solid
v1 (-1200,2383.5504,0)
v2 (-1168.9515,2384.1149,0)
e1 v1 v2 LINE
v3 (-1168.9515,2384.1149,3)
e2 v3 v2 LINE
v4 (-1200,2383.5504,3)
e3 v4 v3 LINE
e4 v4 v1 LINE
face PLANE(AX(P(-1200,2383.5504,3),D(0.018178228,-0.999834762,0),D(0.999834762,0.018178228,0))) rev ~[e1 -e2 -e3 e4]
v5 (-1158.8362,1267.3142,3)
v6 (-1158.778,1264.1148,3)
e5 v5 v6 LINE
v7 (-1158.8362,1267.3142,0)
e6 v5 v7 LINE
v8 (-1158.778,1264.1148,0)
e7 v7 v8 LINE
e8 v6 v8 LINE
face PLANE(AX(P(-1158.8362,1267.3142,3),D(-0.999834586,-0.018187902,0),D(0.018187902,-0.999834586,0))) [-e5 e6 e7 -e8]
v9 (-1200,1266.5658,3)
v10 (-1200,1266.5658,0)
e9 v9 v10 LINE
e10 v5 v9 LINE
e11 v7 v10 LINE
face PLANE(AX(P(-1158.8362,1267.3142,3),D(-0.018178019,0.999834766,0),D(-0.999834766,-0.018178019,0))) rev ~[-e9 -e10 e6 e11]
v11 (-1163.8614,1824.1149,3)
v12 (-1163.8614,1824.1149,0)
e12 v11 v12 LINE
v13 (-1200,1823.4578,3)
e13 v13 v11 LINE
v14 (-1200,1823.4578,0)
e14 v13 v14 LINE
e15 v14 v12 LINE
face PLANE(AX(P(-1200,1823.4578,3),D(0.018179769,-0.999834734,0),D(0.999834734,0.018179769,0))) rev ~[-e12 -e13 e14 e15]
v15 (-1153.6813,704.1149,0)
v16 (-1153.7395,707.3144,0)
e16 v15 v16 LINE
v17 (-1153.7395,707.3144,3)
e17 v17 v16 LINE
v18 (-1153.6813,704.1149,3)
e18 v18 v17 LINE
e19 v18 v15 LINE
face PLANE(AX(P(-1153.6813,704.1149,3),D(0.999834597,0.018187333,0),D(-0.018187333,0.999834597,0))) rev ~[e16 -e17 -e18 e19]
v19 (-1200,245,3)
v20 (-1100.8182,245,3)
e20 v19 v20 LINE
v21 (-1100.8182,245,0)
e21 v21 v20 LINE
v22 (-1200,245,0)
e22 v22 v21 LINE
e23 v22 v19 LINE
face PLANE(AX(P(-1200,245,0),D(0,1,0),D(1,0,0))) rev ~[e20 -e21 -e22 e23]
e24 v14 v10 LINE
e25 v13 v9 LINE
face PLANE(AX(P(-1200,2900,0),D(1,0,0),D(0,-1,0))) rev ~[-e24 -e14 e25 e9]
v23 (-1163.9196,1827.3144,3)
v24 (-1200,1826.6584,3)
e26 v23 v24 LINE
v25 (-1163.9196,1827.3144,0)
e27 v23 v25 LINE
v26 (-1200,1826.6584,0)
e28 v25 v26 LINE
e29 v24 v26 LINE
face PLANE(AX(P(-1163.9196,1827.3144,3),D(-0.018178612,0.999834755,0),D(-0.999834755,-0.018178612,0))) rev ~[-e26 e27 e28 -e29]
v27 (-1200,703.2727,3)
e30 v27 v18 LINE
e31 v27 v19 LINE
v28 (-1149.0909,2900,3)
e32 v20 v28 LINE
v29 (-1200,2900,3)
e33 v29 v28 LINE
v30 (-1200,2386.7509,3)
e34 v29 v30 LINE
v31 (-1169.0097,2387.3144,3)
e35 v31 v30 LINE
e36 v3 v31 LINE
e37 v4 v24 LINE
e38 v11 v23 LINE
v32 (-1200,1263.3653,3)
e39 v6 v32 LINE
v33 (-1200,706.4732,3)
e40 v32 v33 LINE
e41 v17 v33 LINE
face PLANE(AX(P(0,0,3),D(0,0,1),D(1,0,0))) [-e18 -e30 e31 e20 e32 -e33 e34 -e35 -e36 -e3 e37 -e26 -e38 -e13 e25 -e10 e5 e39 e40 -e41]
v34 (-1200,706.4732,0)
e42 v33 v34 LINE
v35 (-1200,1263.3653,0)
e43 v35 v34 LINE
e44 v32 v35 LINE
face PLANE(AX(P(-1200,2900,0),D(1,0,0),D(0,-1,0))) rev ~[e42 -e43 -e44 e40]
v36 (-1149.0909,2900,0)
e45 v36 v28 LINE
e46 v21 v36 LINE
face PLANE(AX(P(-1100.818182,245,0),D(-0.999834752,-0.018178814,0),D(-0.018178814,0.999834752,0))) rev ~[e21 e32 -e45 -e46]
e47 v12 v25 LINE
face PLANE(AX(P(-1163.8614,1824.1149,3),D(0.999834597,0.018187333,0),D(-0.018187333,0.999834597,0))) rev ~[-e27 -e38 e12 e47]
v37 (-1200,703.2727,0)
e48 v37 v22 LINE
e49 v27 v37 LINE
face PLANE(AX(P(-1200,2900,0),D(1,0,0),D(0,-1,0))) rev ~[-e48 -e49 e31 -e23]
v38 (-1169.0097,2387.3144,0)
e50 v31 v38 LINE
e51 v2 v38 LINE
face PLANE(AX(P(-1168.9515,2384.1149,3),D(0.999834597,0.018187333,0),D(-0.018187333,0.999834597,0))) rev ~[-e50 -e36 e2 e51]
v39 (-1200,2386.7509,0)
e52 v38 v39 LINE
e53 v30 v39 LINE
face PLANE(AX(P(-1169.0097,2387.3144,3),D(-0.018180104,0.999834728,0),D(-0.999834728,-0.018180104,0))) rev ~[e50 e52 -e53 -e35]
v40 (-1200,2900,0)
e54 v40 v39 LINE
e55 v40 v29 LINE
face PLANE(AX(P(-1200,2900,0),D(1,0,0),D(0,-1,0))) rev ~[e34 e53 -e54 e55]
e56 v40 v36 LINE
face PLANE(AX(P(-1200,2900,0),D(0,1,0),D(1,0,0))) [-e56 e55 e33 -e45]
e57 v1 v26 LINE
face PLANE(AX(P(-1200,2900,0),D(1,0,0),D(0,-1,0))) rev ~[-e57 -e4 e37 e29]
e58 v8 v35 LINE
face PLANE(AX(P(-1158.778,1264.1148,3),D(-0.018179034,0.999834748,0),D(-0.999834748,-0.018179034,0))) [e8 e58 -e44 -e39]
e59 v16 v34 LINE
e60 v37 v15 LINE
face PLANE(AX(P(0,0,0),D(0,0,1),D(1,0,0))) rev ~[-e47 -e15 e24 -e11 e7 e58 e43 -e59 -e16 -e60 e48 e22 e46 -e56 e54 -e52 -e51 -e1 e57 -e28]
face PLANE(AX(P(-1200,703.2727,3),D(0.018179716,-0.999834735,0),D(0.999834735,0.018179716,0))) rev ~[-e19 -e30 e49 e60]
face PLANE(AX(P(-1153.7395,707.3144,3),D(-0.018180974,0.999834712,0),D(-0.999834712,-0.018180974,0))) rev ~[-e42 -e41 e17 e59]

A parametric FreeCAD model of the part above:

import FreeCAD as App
import Part
import Sketcher

V = App.Vector

doc = App.newDocument("Part")
body = doc.addObject("PartDesign::Body", "Body")

# Sketch on XY plane
sketch1 = body.newObject("Sketcher::SketchObject", "Sketch")
sketch1.AttachmentSupport = (doc.getObject("XY_Plane"), [""])
sketch1.MapMode = "FlatFace"
sketch1.addGeometry(Part.LineSegment(V(-1101, 245, 0), V(-1149, 2900, 0)), False)
sketch1.addGeometry(Part.LineSegment(V(-1149, 2900, 0), V(-1200, 2900, 0)), False)
sketch1.addGeometry(Part.LineSegment(V(-1200, 2900, 0), V(-1200, 245, 0)), False)
sketch1.addGeometry(Part.LineSegment(V(-1200, 245, 0), V(-1101, 245, 0)), False)
sketch1.addConstraint(Sketcher.Constraint("Coincident", 0, 2, 1, 1))
sketch1.addConstraint(Sketcher.Constraint("Coincident", 1, 2, 2, 1))
sketch1.addConstraint(Sketcher.Constraint("Coincident", 2, 2, 3, 1))
sketch1.addConstraint(Sketcher.Constraint("Coincident", 3, 2, 0, 1))
sketch1.addConstraint(Sketcher.Constraint("Horizontal", 1))
sketch1.addConstraint(Sketcher.Constraint("Vertical", 2))
sketch1.addConstraint(Sketcher.Constraint("Horizontal", 3))
sketch1.addConstraint(Sketcher.Constraint("DistanceY", 2, 2, 2, 1, 2655.0))
sketch1.addConstraint(Sketcher.Constraint("DistanceY", -1, 1, 0, 2, 2900.0))
sketch1.addConstraint(Sketcher.Constraint("DistanceX", 1, 2, -1, 1, 1200.0))
sketch1.addConstraint(Sketcher.Constraint("DistanceX", 1, 2, 1, 1, 50.909))
sketch1.addConstraint(Sketcher.Constraint("DistanceX", 3, 1, 3, 2, 99.1818))
pad1 = body.newObject("PartDesign::Pad", "Pad")
pad1.Profile = sketch1
pad1.Length = 3

# Sketch on XY plane
sketch2 = body.newObject("Sketcher::SketchObject", "Sketch001")
sketch2.AttachmentSupport = (doc.getObject("XY_Plane"), [""])
sketch2.MapMode = "FlatFace"
sketch2.AttachmentOffset = App.Placement(V(0, 0, 3), App.Rotation())
sketch2.addGeometry(Part.LineSegment(V(-1169, 2387.3, 0), V(-1200, 2386.8, 0)), False)
sketch2.addGeometry(Part.LineSegment(V(-1200, 2386.8, 0), V(-1200, 2383.6, 0)), False)
sketch2.addGeometry(Part.LineSegment(V(-1200, 2383.6, 0), V(-1169, 2384.1, 0)), False)
sketch2.addGeometry(Part.LineSegment(V(-1169, 2384.1, 0), V(-1169, 2387.3, 0)), False)
sketch2.addGeometry(Part.LineSegment(V(-1200, 706.5, 0), V(-1200, 703.3, 0)), False)
sketch2.addGeometry(Part.LineSegment(V(-1200, 703.3, 0), V(-1153.7, 704.1, 0)), False)
sketch2.addGeometry(Part.LineSegment(V(-1153.7, 704.1, 0), V(-1153.7, 707.3, 0)), False)
sketch2.addGeometry(Part.LineSegment(V(-1153.7, 707.3, 0), V(-1200, 706.5, 0)), False)
sketch2.addGeometry(Part.LineSegment(V(-1163.9, 1827.3, 0), V(-1200, 1826.7, 0)), False)
sketch2.addGeometry(Part.LineSegment(V(-1200, 1826.7, 0), V(-1200, 1823.5, 0)), False)
sketch2.addGeometry(Part.LineSegment(V(-1200, 1823.5, 0), V(-1163.9, 1824.1, 0)), False)
sketch2.addGeometry(Part.LineSegment(V(-1163.9, 1824.1, 0), V(-1163.9, 1827.3, 0)), False)
sketch2.addGeometry(Part.LineSegment(V(-1200, 1266.6, 0), V(-1200, 1263.4, 0)), False)
sketch2.addGeometry(Part.LineSegment(V(-1200, 1263.4, 0), V(-1158.8, 1264.1, 0)), False)
sketch2.addGeometry(Part.LineSegment(V(-1158.8, 1264.1, 0), V(-1158.8, 1267.3, 0)), False)
sketch2.addGeometry(Part.LineSegment(V(-1158.8, 1267.3, 0), V(-1200, 1266.6, 0)), False)
sketch2.addConstraint(Sketcher.Constraint("Coincident", 0, 2, 1, 1))
sketch2.addConstraint(Sketcher.Constraint("Coincident", 1, 2, 2, 1))
sketch2.addConstraint(Sketcher.Constraint("Coincident", 2, 2, 3, 1))
sketch2.addConstraint(Sketcher.Constraint("Coincident", 3, 2, 0, 1))
sketch2.addConstraint(Sketcher.Constraint("Coincident", 4, 2, 5, 1))
sketch2.addConstraint(Sketcher.Constraint("Coincident", 5, 2, 6, 1))
sketch2.addConstraint(Sketcher.Constraint("Coincident", 6, 2, 7, 1))
sketch2.addConstraint(Sketcher.Constraint("Coincident", 7, 2, 4, 1))
sketch2.addConstraint(Sketcher.Constraint("Coincident", 8, 2, 9, 1))
sketch2.addConstraint(Sketcher.Constraint("Coincident", 9, 2, 10, 1))
sketch2.addConstraint(Sketcher.Constraint("Coincident", 10, 2, 11, 1))
sketch2.addConstraint(Sketcher.Constraint("Coincident", 11, 2, 8, 1))
sketch2.addConstraint(Sketcher.Constraint("Coincident", 12, 2, 13, 1))
sketch2.addConstraint(Sketcher.Constraint("Coincident", 13, 2, 14, 1))
sketch2.addConstraint(Sketcher.Constraint("Coincident", 14, 2, 15, 1))
sketch2.addConstraint(Sketcher.Constraint("Coincident", 15, 2, 12, 1))
sketch2.addConstraint(Sketcher.Constraint("Vertical", 1))
sketch2.addConstraint(Sketcher.Constraint("Vertical", 4))
sketch2.addConstraint(Sketcher.Constraint("Vertical", 9))
sketch2.addConstraint(Sketcher.Constraint("Vertical", 12))
sketch2.addConstraint(Sketcher.Constraint("Parallel", 0, 2))
sketch2.addConstraint(Sketcher.Constraint("Perpendicular", 2, 3))
sketch2.addConstraint(Sketcher.Constraint("Perpendicular", 3, 5))
sketch2.addConstraint(Sketcher.Constraint("Perpendicular", 5, 6))
sketch2.addConstraint(Sketcher.Constraint("Perpendicular", 6, 7))
sketch2.addConstraint(Sketcher.Constraint("Parallel", 7, 8))
sketch2.addConstraint(Sketcher.Constraint("Parallel", 8, 10))
sketch2.addConstraint(Sketcher.Constraint("Perpendicular", 10, 11))
sketch2.addConstraint(Sketcher.Constraint("Perpendicular", 11, 13))
sketch2.addConstraint(Sketcher.Constraint("Perpendicular", 13, 14))
sketch2.addConstraint(Sketcher.Constraint("Perpendicular", 14, 15))
sketch2.addConstraint(Sketcher.Constraint("Vertical", 1, 2, 4, 2))
sketch2.addConstraint(Sketcher.Constraint("Vertical", 7, 2, 8, 2))
sketch2.addConstraint(Sketcher.Constraint("Vertical", 9, 2, 12, 2))
sketch2.addConstraint(Sketcher.Constraint("Equal", 1, 4))
sketch2.addConstraint(Sketcher.Constraint("Equal", 4, 9))
sketch2.addConstraint(Sketcher.Constraint("Equal", 9, 12))
sketch2.addConstraint(Sketcher.Constraint("DistanceY", 10, 2, 2, 2, 560.0))
sketch2.addConstraint(Sketcher.Constraint("DistanceY", 5, 2, 13, 2, 560.0))
sketch2.addConstraint(Sketcher.Constraint("DistanceY", 13, 2, 10, 2, 560.0))
sketch2.addConstraint(Sketcher.Constraint("Distance", 3, 3.2))
sketch2.addConstraint(Sketcher.Constraint("DistanceX", 0, 2, -1, 1, 1200.0))
sketch2.addConstraint(Sketcher.Constraint("Distance", 2, 31.0536))
sketch2.addConstraint(Sketcher.Constraint("Distance", 5, 46.3264))
sketch2.addConstraint(Sketcher.Constraint("Distance", 10, 36.1446))
sketch2.addConstraint(Sketcher.Constraint("Distance", 13, 41.2288))
sketch2.addConstraint(Sketcher.Constraint("DistanceY", -1, 1, 0, 2, 2386.751))
sketch2.addConstraint(Sketcher.Constraint("DistanceY", -1, 1, 2, 2, 2384.115))
pocket1 = body.newObject("PartDesign::Pocket", "Pocket")
pocket1.Profile = sketch2
pocket1.Type = "ThroughAll"

doc.recompute()
